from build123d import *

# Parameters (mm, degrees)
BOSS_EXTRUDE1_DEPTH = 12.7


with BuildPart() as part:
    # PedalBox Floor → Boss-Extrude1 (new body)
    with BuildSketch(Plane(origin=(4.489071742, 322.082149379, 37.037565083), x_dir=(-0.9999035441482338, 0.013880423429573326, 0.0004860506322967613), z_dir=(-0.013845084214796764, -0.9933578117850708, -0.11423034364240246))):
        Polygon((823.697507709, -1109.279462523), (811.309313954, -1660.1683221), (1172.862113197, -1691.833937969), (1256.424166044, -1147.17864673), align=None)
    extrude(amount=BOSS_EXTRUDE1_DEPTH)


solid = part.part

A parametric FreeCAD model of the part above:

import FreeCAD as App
import Part
import Sketcher

V = App.Vector
Q = App.Units.Quantity

doc = App.newDocument("Part")
body = doc.addObject("PartDesign::Body", "Body")

sketch1 = body.newObject("Sketcher::SketchObject", "Sketch")
sketch1.Placement = App.Placement(V(4.489072, 322.082149, 37.037565), App.Rotation(V(-0.999903544, 0.013880423, 0.000486051), V(0.001102743, 0.114226055, -0.993454172), V(-0.013845084, -0.993357812, -0.114230344), "ZXY"))
sketch1.addGeometry(Part.LineSegment(V(824, -1109, 0), V(811, -1660, 0)), False)
sketch1.addGeometry(Part.LineSegment(V(811, -1660, 0), V(1173, -1692, 0)), False)
sketch1.addGeometry(Part.LineSegment(V(1173, -1692, 0), V(1256, -1147, 0)), False)
sketch1.addGeometry(Part.LineSegment(V(1256, -1147, 0), V(824, -1109, 0)), False)
sketch1.addConstraint(Sketcher.Constraint("Coincident", 0, 2, 1, 1))
sketch1.addConstraint(Sketcher.Constraint("Coincident", 1, 2, 2, 1))
sketch1.addConstraint(Sketcher.Constraint("Coincident", 2, 2, 3, 1))
sketch1.addConstraint(Sketcher.Constraint("Coincident", 3, 2, 0, 1))
sketch1.addConstraint(Sketcher.Constraint("Parallel", 1, 3))
sketch1.addConstraint(Sketcher.Constraint("Equal", 0, 2))
sketch1.addConstraint(Sketcher.Constraint("DistanceX", 0, 2, 1, 2, Q("361.552799 mm")))
sketch1.addConstraint(Sketcher.Constraint("DistanceY", 1, 2, -1, 1, Q("1691.833938 mm")))
sketch1.addConstraint(Sketcher.Constraint("DistanceY", 1, 2, 2, 2, Q("544.655291 mm")))
sketch1.addConstraint(Sketcher.Constraint("DistanceX", 0, 2, 2, 2, Q("445.114852 mm")))
sketch1.addConstraint(Sketcher.Constraint("DistanceX", 3, 2, 2, 2, Q("432.726658 mm")))
sketch1.addConstraint(Sketcher.Constraint("DistanceX", -1, 1, 0, 2, Q("811.309314 mm")))
pad1 = body.newObject("PartDesign::Pad", "Pad")
pad1.Profile = sketch1
pad1.Length = Q("0.5 in")

doc.recompute()
